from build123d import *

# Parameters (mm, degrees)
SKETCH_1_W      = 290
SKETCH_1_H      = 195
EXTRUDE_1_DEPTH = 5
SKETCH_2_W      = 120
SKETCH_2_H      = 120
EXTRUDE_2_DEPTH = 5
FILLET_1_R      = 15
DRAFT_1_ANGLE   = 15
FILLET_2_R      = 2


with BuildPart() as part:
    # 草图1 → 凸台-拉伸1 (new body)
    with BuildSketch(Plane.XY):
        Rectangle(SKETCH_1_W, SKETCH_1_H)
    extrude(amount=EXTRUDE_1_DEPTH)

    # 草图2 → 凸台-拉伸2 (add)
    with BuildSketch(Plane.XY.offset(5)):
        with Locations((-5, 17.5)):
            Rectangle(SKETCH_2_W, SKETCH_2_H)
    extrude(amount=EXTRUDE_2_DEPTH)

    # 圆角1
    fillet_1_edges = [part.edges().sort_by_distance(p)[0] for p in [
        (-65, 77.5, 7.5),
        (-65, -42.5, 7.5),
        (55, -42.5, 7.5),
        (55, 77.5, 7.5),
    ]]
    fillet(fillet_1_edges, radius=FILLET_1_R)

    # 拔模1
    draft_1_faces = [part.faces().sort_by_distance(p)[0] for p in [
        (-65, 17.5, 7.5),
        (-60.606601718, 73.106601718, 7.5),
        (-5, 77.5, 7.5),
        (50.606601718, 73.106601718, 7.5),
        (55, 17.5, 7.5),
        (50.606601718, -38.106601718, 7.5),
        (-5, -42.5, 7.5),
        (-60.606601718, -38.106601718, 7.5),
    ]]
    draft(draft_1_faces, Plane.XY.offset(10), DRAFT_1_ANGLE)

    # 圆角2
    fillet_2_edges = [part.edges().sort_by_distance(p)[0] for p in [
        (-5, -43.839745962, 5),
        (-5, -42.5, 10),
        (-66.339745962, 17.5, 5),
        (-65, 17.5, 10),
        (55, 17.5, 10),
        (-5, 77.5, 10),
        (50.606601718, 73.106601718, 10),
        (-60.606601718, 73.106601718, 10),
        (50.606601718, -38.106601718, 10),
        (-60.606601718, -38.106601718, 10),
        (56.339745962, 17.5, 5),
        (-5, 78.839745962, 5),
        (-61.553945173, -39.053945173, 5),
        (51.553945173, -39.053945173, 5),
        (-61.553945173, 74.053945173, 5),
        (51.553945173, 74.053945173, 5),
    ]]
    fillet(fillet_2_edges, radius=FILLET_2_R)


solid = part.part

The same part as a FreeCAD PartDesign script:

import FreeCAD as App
import Part
import Sketcher
Q = App.Units.Quantity


def edges_at(feature, points):
    """Names of the edges that pass closest to the given points."""
    edges = feature.Shape.Edges
    near = lambda p: min(range(len(edges)), key=lambda i: edges[i].distToShape(Part.Vertex(*p))[0])
    return sorted({f"Edge{near(p) + 1}" for p in points})


def faces_at(feature, points):
    """Names of the faces that lie closest to the given points."""
    faces = feature.Shape.Faces
    near = lambda p: min(range(len(faces)), key=lambda i: faces[i].distToShape(Part.Vertex(*p))[0])
    return sorted({f"Face{near(p) + 1}" for p in points})


def add_polygon(sketch, points):
    """Adds a closed chain of lines whose ends are joined by coincident constraints."""
    first, n = sketch.GeometryCount, len(points)
    for a, b in zip(points, points[1:] + points[:1]):
        sketch.addGeometry(Part.LineSegment(App.Vector(*a, 0), App.Vector(*b, 0)), False)
    for i in range(n):
        sketch.addConstraint(Sketcher.Constraint("Coincident", first + i, 2, first + (i + 1) % n, 1))

doc = App.newDocument("Part")
body = doc.addObject("PartDesign::Body", "Body")

sketch1 = body.newObject("Sketcher::SketchObject", "Sketch")
sketch1.AttachmentSupport = (doc.getObject("XY_Plane"), [""])
sketch1.MapMode = "FlatFace"
add_polygon(sketch1, [(-145, 97.5), (-145, -97.5), (145, -97.5), (145, 97.5)])
sketch1.addConstraint(Sketcher.Constraint("Vertical", 0))
sketch1.addConstraint(Sketcher.Constraint("Horizontal", 1))
sketch1.addConstraint(Sketcher.Constraint("Vertical", 2))
sketch1.addConstraint(Sketcher.Constraint("Horizontal", 3))
sketch1.addConstraint(Sketcher.Constraint("Symmetric", 0, 2, 2, 2, -1, 1))
sketch1.addConstraint(Sketcher.Constraint("DistanceX", 1, 1, 1, 2, Q("290 mm")))
sketch1.addConstraint(Sketcher.Constraint("DistanceY", 0, 2, 0, 1, Q("195 mm")))
pad1 = body.newObject("PartDesign::Pad", "Pad")
pad1.Profile = sketch1
pad1.Length = 5

sketch2 = body.newObject("Sketcher::SketchObject", "Sketch001")
sketch2.AttachmentSupport = (doc.getObject("XY_Plane"), [""])
sketch2.MapMode = "FlatFace"
sketch2.AttachmentOffset = App.Placement(App.Vector(0, 0, 5), App.Rotation())
add_polygon(sketch2, [(-65, 77.5), (-65, -42.5), (55, -42.5), (55, 77.5)])
sketch2.addConstraint(Sketcher.Constraint("Vertical", 0))
sketch2.addConstraint(Sketcher.Constraint("Horizontal", 1))
sketch2.addConstraint(Sketcher.Constraint("Vertical", 2))
sketch2.addConstraint(Sketcher.Constraint("Horizontal", 3))
sketch2.addConstraint(Sketcher.Constraint("Equal", 3, 0))
sketch2.addConstraint(Sketcher.Constraint("DistanceX", 1, 1, 1, 2, Q("120 mm")))
sketch2.addConstraint(Sketcher.Constraint("DistanceX", 0, 2, -1, 1, Q("65 mm")))
sketch2.addConstraint(Sketcher.Constraint("DistanceY", 0, 2, -1, 1, Q("42.5 mm")))
pad2 = body.newObject("PartDesign::Pad", "Pad001")
pad2.Profile = sketch2
pad2.Length = 5
doc.recompute()

fillet = body.newObject("PartDesign::Fillet", "Fillet")
fillet.Base = (pad2, edges_at(pad2, [
    (-65, 77.5, 7.5),
    (-65, -42.5, 7.5),
    (55, -42.5, 7.5),
    (55, 77.5, 7.5),
]))
fillet.Radius = 15
doc.recompute()

datumplane = body.newObject("PartDesign::Plane", "DatumPlane")
datumplane.AttachmentSupport = (doc.getObject("XY_Plane"), [""])
datumplane.MapMode = "FlatFace"
datumplane.AttachmentOffset = App.Placement(App.Vector(0, 0, 10), App.Rotation())
draft = body.newObject("PartDesign::Draft", "Draft")
draft.Base = (fillet, faces_at(fillet, [
    (-65, 17.5, 7.5),
    (-60.607, 73.107, 7.5),
    (-5, 77.5, 7.5),
    (50.607, 73.107, 7.5),
    (55, 17.5, 7.5),
    (50.607, -38.107, 7.5),
    (-5, -42.5, 7.5),
    (-60.607, -38.107, 7.5),
]))
draft.NeutralPlane = (datumplane, [""])
draft.Angle = 15
draft.Reversed = False
doc.recompute()

fillet2 = body.newObject("PartDesign::Fillet", "Fillet001")
fillet2.Base = (draft, edges_at(draft, [
    (-5, -43.84, 5),
    (-5, -42.5, 10),
    (-66.34, 17.5, 5),
    (-65, 17.5, 10),
    (55, 17.5, 10),
    (-5, 77.5, 10),
    (50.607, 73.107, 10),
    (-60.607, 73.107, 10),
    (50.607, -38.107, 10),
    (-60.607, -38.107, 10),
    (56.34, 17.5, 5),
    (-5, 78.84, 5),
    (-61.554, -39.054, 5),
    (51.554, -39.054, 5),
    (-61.554, 74.054, 5),
    (51.554, 74.054, 5),
]))
fillet2.Radius = 2

doc.recompute()
